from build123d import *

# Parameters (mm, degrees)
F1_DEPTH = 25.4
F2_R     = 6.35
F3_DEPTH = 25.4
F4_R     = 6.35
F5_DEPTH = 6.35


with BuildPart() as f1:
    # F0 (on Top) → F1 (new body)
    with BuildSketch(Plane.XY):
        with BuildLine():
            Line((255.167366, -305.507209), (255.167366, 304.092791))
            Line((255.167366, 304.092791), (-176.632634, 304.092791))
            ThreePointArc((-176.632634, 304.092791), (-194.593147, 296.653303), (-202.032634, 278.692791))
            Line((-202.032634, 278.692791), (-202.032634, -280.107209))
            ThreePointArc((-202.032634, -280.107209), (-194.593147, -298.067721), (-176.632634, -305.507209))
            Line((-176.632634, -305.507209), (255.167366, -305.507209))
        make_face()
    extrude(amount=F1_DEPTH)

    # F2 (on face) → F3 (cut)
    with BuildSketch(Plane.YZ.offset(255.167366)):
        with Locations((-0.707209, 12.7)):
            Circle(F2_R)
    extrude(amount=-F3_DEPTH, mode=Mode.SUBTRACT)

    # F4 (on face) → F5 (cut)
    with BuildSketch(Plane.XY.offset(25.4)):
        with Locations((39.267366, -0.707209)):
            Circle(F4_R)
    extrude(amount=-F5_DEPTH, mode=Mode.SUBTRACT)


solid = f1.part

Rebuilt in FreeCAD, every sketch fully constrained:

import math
import FreeCAD as App
import Part
import Sketcher
Q = App.Units.Quantity

doc = App.newDocument("Part")
params = doc.addObject("Spreadsheet::Sheet", "Params")
for row, (alias, value) in enumerate([
    ("sketch1_radius", "1 in"),
    ("sketch1_width", "17 in"),
    ("sketch1_height", "24 in"),
    ("pad1_length", "1 in"),
    ("sketch2_diameter", "0.5 in"),
    ("pocket1_length", "1 in"),
    ("sketch3_diameter", "0.5 in"),
    ("pocket2_length", "0.25 in"),
], start=1):
    params.set(f"A{row}", alias)
    params.set(f"B{row}", "=" + value)
    params.setAlias(f"B{row}", alias)

body = doc.addObject("PartDesign::Body", "Body")

sketch1 = body.newObject("Sketcher::SketchObject", "Sketch")
sketch1.AttachmentSupport = (doc.getObject("XY_Plane"), [""])
sketch1.MapMode = "FlatFace"
sketch1.addGeometry([
    Part.LineSegment(App.Vector(255, -306, 0), App.Vector(255, 304, 0)),
    Part.LineSegment(App.Vector(255, 304, 0), App.Vector(-177, 304, 0)),
    Part.ArcOfCircle(Part.Circle(App.Vector(-177, 279, 0), App.Vector(0, 0, 1), 25), math.radians(90), math.radians(180)),
    Part.LineSegment(App.Vector(-202, 279, 0), App.Vector(-202, -280, 0)),
    Part.ArcOfCircle(Part.Circle(App.Vector(-177, -280, 0), App.Vector(0, 0, 1), 25), math.radians(180), math.radians(270)),
    Part.LineSegment(App.Vector(-177, -306, 0), App.Vector(255, -306, 0)),
], False)
sketch1.addConstraint([
    Sketcher.Constraint("Coincident", 0, 2, 1, 1),
    Sketcher.Constraint("Tangent", 1, 2, 2, 1),
    Sketcher.Constraint("Tangent", 2, 2, 3, 1),
    Sketcher.Constraint("Tangent", 3, 2, 4, 1),
    Sketcher.Constraint("Tangent", 4, 2, 5, 1),
    Sketcher.Constraint("Coincident", 5, 2, 0, 1),
    Sketcher.Constraint("Vertical", 0),
    Sketcher.Constraint("Horizontal", 1),
    Sketcher.Constraint("Vertical", 3),
    Sketcher.Constraint("Horizontal", 5),
    Sketcher.Constraint("Equal", 2, 4),
    Sketcher.Constraint("Radius", 2, Q("1 in")),
    Sketcher.Constraint("DistanceX", 1, 2, 1, 1, Q("17 in")),
    Sketcher.Constraint("DistanceY", 0, 1, 0, 2, Q("24 in")),
    Sketcher.Constraint("DistanceY", -1, 1, 2, 3, 278.692792),
    Sketcher.Constraint("DistanceX", 2, 3, -1, 1, 176.632635),
])
sketch1.setExpression("Constraints[11]", "Params.sketch1_radius")
sketch1.setExpression("Constraints[12]", "Params.sketch1_width")
sketch1.setExpression("Constraints[13]", "Params.sketch1_height")
pad1 = body.newObject("PartDesign::Pad", "Pad")
pad1.Profile = sketch1
pad1.setExpression("Length", "Params.pad1_length")

sketch2 = body.newObject("Sketcher::SketchObject", "Sketch001")
sketch2.AttachmentSupport = (doc.getObject("YZ_Plane"), [""])
sketch2.MapMode = "FlatFace"
sketch2.AttachmentOffset = App.Placement(App.Vector(0, 0, 255.167366), App.Rotation())
sketch2.addGeometry(Part.Circle(App.Vector(-1, 13, 0), App.Vector(0, 0, 1), 6), False)
sketch2.addConstraint([
    Sketcher.Constraint("Diameter", 0, Q("0.5 in")),
    Sketcher.Constraint("DistanceY", -1, 1, 0, 3, Q("0.5 in")),
    Sketcher.Constraint("DistanceX", 0, 3, -1, 1, 0.707209),
])
sketch2.setExpression("Constraints[0]", "Params.sketch2_diameter")
pocket1 = body.newObject("PartDesign::Pocket", "Pocket")
pocket1.Profile = sketch2
pocket1.setExpression("Length", "Params.pocket1_length")

sketch3 = body.newObject("Sketcher::SketchObject", "Sketch002")
sketch3.AttachmentSupport = (doc.getObject("XY_Plane"), [""])
sketch3.MapMode = "FlatFace"
sketch3.AttachmentOffset = App.Placement(App.Vector(0, 0, 1 * 25.4), App.Rotation())
sketch3.addGeometry(Part.Circle(App.Vector(39, -1, 0), App.Vector(0, 0, 1), 6), False)
sketch3.addConstraint([
    Sketcher.Constraint("Diameter", 0, Q("0.5 in")),
    Sketcher.Constraint("DistanceY", 0, 3, -1, 1, 0.707209),
    Sketcher.Constraint("DistanceX", -1, 1, 0, 3, 39.267366),
])
sketch3.setExpression("Constraints[0]", "Params.sketch3_diameter")
pocket2 = body.newObject("PartDesign::Pocket", "Pocket001")
pocket2.Profile = sketch3
pocket2.setExpression("Length", "Params.pocket2_length")

doc.recompute()
